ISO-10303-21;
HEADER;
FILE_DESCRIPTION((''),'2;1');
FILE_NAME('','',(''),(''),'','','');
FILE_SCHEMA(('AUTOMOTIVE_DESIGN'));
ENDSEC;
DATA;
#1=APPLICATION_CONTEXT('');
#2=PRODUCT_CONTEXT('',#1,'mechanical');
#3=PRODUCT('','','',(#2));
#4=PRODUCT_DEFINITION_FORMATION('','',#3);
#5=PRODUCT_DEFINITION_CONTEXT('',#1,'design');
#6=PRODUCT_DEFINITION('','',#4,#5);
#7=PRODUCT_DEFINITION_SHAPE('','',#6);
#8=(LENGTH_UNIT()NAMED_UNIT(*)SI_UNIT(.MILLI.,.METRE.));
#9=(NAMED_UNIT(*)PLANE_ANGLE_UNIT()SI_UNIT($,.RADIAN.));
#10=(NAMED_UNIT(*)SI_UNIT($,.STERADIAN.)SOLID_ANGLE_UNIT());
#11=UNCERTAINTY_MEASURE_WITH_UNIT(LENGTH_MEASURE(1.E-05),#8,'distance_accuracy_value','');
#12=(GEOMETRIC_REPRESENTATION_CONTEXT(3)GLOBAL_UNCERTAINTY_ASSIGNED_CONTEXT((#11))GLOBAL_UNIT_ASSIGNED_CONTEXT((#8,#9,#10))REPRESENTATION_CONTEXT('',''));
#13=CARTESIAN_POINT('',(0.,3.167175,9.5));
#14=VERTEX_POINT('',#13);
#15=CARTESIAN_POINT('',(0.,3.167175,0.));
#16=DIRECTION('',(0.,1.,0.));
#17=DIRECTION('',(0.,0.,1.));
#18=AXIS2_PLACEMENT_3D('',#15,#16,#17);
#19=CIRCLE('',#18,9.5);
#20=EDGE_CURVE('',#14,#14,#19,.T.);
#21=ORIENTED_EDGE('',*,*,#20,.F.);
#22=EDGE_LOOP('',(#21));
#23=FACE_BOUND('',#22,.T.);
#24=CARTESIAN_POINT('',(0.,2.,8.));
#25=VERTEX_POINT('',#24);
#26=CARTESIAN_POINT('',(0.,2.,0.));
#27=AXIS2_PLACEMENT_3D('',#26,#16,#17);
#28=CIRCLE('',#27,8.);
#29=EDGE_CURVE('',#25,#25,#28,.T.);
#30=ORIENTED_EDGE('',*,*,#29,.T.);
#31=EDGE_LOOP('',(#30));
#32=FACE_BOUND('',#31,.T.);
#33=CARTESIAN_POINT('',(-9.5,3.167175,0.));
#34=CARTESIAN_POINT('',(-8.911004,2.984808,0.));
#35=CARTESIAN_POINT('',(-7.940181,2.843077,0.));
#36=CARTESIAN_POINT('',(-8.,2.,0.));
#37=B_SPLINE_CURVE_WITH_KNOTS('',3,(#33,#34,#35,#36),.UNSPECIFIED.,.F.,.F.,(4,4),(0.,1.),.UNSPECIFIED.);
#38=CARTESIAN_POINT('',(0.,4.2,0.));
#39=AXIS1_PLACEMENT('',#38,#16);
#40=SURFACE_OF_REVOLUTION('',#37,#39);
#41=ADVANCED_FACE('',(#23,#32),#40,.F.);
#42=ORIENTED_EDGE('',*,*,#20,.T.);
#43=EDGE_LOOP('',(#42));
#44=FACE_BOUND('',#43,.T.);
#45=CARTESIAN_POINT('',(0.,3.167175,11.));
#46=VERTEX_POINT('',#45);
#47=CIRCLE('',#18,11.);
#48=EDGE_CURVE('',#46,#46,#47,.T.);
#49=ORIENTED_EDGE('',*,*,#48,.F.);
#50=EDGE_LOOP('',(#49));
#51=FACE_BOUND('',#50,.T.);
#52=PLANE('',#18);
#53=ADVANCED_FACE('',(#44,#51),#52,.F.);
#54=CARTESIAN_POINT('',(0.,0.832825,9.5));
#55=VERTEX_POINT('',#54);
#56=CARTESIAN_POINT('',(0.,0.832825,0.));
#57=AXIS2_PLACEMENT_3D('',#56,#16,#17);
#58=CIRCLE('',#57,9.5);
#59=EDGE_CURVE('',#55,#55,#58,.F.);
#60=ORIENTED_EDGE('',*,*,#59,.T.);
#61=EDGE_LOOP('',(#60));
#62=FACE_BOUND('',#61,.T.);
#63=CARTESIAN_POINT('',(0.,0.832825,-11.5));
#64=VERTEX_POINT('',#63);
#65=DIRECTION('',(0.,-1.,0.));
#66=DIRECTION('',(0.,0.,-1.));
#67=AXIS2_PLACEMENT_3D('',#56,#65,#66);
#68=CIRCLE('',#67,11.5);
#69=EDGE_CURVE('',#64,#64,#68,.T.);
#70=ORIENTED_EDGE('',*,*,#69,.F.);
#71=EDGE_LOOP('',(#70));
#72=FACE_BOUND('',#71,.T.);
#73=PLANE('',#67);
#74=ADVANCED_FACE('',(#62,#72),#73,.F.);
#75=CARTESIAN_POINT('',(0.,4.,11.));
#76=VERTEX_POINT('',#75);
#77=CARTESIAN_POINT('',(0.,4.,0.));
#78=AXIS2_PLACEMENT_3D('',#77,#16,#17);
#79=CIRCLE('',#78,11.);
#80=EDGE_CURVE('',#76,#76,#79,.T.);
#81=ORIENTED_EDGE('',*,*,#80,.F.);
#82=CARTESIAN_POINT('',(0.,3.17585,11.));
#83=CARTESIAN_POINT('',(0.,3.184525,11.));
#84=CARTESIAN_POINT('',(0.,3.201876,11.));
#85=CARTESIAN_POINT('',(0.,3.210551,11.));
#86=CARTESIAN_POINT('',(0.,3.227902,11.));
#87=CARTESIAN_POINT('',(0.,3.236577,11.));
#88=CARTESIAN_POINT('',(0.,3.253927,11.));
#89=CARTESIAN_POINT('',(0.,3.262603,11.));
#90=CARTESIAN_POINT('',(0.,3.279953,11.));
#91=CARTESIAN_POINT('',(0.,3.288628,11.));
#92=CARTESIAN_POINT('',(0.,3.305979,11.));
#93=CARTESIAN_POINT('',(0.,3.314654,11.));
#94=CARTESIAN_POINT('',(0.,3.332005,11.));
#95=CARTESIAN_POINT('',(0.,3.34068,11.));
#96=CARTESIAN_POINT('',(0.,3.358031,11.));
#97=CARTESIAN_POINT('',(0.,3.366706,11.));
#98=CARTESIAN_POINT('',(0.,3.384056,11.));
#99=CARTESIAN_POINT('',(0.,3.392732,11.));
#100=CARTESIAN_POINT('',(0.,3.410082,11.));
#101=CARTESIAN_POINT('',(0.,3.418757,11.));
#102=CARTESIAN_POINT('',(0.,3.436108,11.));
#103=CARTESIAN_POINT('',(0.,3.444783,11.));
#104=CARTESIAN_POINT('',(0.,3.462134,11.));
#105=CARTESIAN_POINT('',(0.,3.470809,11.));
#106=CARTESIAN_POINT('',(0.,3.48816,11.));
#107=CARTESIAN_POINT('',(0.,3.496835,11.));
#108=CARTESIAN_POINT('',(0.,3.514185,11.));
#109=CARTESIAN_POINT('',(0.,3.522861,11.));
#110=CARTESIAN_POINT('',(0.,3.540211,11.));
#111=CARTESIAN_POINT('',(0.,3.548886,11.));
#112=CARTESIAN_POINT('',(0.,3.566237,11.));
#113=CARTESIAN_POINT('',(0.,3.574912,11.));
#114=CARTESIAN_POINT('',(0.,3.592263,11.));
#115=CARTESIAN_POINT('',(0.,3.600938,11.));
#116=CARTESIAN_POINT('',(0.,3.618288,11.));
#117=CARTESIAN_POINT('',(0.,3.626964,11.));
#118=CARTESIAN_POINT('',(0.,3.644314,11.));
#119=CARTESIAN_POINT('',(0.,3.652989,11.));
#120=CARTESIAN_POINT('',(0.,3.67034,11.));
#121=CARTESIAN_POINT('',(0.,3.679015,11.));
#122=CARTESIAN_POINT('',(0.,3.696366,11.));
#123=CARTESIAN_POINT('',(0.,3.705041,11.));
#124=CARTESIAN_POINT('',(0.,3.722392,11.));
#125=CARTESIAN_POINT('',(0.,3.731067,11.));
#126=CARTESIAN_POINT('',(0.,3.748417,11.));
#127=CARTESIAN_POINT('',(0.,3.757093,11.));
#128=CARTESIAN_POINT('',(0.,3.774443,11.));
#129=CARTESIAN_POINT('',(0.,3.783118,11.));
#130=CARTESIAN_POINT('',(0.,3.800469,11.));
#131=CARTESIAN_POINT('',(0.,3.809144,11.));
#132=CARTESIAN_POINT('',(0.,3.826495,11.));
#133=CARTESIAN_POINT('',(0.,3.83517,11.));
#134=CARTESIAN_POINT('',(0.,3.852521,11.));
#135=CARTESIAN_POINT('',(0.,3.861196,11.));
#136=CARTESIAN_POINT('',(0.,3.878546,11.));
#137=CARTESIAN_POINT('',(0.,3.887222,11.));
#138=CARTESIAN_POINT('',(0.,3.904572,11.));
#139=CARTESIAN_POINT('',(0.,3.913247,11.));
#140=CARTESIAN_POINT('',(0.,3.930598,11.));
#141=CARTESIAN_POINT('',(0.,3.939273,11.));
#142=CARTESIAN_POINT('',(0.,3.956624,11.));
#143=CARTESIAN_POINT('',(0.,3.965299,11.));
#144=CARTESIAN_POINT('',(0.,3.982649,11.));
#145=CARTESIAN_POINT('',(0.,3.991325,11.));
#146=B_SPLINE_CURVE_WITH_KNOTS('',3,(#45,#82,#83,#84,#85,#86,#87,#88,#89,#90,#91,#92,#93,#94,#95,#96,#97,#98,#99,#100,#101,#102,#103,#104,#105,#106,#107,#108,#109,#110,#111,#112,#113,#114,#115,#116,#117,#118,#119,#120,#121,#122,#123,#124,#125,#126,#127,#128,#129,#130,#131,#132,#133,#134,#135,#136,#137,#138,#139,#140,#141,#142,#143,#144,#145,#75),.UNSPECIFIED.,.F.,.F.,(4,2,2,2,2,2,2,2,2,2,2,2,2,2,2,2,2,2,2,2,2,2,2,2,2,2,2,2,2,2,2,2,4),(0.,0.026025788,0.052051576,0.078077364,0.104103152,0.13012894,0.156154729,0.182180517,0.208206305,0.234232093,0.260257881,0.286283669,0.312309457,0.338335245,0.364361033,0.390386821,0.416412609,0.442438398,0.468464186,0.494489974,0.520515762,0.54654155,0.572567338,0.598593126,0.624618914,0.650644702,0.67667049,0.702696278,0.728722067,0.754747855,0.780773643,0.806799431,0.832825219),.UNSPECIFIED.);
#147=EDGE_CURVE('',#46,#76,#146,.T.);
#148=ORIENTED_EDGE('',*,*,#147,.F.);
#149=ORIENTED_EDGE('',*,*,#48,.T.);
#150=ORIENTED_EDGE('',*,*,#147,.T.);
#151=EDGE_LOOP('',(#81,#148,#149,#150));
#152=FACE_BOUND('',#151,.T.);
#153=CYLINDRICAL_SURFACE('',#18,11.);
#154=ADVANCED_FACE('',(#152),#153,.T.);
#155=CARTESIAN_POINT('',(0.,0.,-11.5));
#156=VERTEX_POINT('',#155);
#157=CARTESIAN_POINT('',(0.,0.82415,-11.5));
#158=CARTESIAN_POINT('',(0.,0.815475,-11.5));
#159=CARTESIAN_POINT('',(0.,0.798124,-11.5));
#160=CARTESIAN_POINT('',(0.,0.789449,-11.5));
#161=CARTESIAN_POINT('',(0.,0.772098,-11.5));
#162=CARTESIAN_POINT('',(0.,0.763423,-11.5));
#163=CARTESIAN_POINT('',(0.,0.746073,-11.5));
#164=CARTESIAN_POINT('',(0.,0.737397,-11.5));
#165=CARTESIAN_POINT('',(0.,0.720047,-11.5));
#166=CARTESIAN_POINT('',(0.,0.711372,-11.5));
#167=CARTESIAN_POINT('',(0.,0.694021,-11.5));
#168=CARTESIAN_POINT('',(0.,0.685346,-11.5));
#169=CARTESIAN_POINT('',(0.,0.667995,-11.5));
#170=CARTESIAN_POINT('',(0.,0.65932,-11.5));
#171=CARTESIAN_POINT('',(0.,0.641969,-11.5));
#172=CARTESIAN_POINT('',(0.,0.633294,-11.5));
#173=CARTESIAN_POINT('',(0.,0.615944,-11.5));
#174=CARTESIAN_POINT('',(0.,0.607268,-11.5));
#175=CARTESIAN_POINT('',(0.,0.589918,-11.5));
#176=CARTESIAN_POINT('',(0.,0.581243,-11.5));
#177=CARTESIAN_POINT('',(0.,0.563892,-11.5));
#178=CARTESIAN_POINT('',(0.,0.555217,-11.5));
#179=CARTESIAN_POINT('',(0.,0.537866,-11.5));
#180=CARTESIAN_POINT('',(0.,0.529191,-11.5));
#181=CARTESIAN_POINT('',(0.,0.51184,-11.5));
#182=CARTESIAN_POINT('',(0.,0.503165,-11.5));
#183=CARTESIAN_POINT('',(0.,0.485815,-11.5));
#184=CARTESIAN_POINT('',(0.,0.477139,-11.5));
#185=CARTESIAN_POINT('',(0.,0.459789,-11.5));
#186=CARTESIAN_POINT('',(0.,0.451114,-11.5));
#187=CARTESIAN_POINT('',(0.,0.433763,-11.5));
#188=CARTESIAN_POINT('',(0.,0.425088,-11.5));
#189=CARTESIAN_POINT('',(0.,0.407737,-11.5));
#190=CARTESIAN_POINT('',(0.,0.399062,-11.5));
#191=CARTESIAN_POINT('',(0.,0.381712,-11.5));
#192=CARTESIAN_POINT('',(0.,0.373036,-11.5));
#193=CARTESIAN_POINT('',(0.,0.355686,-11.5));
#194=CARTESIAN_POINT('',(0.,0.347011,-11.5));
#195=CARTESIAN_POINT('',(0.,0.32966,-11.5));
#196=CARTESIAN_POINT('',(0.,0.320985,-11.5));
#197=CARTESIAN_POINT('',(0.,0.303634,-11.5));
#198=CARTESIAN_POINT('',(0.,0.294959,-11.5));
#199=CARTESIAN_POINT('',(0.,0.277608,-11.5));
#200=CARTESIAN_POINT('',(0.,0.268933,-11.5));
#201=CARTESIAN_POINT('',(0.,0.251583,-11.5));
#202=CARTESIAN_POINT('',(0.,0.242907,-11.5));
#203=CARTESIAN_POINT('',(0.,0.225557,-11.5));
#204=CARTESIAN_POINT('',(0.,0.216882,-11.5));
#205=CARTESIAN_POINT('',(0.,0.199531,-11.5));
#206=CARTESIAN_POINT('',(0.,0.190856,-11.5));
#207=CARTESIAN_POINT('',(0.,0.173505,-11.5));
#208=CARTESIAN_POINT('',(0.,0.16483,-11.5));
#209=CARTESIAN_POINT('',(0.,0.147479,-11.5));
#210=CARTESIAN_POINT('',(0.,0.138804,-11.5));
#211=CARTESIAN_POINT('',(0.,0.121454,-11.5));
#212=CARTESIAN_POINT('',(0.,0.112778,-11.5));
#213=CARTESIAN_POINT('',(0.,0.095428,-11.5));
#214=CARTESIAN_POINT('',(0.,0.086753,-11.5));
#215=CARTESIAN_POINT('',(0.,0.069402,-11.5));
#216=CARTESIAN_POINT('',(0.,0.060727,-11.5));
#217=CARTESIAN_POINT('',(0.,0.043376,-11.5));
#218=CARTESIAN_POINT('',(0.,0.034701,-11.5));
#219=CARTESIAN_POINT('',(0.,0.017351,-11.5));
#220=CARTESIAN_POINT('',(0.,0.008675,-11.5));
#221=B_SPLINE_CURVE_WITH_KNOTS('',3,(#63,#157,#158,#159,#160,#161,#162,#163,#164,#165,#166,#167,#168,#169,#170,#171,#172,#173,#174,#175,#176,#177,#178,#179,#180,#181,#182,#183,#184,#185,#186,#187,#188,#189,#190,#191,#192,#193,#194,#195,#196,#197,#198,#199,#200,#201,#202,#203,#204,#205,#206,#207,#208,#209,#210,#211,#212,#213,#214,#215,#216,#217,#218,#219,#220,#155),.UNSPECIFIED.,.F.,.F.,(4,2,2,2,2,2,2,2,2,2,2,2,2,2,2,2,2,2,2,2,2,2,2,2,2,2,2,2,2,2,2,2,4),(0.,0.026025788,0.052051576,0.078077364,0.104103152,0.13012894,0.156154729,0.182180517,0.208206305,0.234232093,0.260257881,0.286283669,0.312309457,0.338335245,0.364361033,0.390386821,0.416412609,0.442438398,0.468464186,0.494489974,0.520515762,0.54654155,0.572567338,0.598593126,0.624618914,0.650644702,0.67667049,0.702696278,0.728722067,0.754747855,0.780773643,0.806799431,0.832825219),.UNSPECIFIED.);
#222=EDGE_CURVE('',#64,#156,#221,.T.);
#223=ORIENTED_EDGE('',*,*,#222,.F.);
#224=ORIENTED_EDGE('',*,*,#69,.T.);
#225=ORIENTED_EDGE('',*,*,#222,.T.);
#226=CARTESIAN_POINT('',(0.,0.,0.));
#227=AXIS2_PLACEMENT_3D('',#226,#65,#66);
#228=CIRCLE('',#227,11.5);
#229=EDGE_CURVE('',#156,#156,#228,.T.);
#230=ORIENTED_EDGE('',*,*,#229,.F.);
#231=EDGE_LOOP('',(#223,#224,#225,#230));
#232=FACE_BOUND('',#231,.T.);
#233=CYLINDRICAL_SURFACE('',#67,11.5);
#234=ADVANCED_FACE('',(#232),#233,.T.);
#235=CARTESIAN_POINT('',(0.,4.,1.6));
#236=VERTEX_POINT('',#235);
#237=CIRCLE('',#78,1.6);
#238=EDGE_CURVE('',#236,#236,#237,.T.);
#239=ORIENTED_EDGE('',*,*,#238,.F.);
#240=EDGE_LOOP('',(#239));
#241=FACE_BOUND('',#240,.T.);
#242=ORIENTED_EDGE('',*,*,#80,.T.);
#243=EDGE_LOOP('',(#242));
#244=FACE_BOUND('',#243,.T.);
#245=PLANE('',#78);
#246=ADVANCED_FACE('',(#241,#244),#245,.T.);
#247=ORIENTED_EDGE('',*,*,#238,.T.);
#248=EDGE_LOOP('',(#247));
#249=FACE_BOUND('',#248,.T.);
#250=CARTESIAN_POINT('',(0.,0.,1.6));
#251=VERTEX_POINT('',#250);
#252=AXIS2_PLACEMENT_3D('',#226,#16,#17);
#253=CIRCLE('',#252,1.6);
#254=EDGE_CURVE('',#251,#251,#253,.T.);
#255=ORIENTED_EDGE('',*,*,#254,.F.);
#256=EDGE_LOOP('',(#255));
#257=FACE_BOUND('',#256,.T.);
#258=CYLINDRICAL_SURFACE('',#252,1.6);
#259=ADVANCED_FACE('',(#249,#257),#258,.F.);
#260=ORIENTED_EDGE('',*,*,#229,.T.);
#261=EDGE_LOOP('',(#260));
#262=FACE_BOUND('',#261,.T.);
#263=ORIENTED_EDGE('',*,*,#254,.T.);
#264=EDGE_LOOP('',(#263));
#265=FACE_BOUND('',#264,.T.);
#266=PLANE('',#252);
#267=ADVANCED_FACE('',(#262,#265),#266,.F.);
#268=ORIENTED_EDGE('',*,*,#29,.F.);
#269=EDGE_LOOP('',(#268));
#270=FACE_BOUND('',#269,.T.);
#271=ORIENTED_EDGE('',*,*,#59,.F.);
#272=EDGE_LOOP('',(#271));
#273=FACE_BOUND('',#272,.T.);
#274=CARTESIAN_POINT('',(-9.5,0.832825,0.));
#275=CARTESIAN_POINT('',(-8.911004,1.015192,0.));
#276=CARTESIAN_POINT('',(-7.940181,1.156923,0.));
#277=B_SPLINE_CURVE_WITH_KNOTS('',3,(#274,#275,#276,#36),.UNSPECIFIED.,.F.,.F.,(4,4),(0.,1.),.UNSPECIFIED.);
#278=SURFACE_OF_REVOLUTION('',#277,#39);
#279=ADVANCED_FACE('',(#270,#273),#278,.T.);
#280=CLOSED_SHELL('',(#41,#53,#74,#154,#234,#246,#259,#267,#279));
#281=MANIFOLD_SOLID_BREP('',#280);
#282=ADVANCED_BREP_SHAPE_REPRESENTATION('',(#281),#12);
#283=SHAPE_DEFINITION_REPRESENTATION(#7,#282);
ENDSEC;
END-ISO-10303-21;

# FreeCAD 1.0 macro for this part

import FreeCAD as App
import Part
import Sketcher
from FreeCAD import Vector
Q = App.Units.Quantity

doc = App.newDocument("Part")
params = doc.addObject("Spreadsheet::Sheet", "Params")
for row, (alias, value) in enumerate([
    ("sketch1_diameter", "19 mm"),
    ("pad1_length", "4 mm"),
    ("groove_angle", "360 deg"),
    ("sketch3_diameter", "3.2 mm"),
    ("sketch4_diameter", "22 mm"),
    ("sketch4_diameter2", "3.2 mm"),
    ("pad2_length", "0.832825 mm"),
    ("sketch5_diameter", "23 mm"),
    ("sketch5_diameter2", "3.2 mm"),
    ("pad3_length", "0.832825 mm"),
], start=1):
    params.set(f"A{row}", alias)
    params.set(f"B{row}", "=" + value)
    params.setAlias(f"B{row}", alias)

body = doc.addObject("PartDesign::Body", "Body")

sketch1 = body.newObject("Sketcher::SketchObject", "Sketch")
sketch1.AttachmentSupport = (doc.getObject("XZ_Plane"), [""])
sketch1.MapMode = "FlatFace"
sketch1.addGeometry(Part.Circle(Vector(0, 0, 0), Vector(0, 0, 1), 10), False)
sketch1.addConstraint([
    Sketcher.Constraint("Coincident", 0, 3, -1, 1),
    Sketcher.Constraint("Diameter", 0, Q("19 mm")),
])
sketch1.setExpression("Constraints[1]", "Params.sketch1_diameter")
pad1 = body.newObject("PartDesign::Pad", "Pad")
pad1.Profile = sketch1
pad1.setExpression("Length", "Params.pad1_length")
pad1.Reversed = True

sketch2 = body.newObject("Sketcher::SketchObject", "Sketch001")
sketch2.AttachmentSupport = (doc.getObject("XY_Plane"), [""])
sketch2.MapMode = "FlatFace"
sketch2.addGeometry([
    Part.LineSegment(Vector(-9.5, 3.167175, 0), Vector(-9.5, 0.832825, 0)),
    Part.BSplineCurve([Vector(-9.5, 0.832825, 0), Vector(-8.911004, 1.015192, 0), Vector(-7.940181, 1.156923, 0), Vector(-8, 2, 0)], [4, 4], [0, 1], False, 3, [1, 1, 1, 1], False),
    Part.BSplineCurve([Vector(-9.5, 3.167175, 0), Vector(-8.911004, 2.984808, 0), Vector(-7.940181, 2.843077, 0), Vector(-8, 2, 0)], [4, 4], [0, 1], False, 3, [1, 1, 1, 1], False),
], False)
sketch2.addConstraint([
    Sketcher.Constraint("Block", 1),
    Sketcher.Constraint("Block", 2),
    Sketcher.Constraint("Coincident", 0, 2, 1, 1),
    Sketcher.Constraint("Coincident", 2, 1, 0, 1),
])
groove = body.newObject("PartDesign::Groove", "Groove")
groove.Profile = sketch2
groove.ReferenceAxis = (sketch2, ["V_Axis"])
groove.setExpression("Angle", "Params.groove_angle")

sketch3 = body.newObject("Sketcher::SketchObject", "Sketch002")
sketch3.AttachmentSupport = (doc.getObject("XZ_Plane"), [""])
sketch3.MapMode = "FlatFace"
sketch3.AttachmentOffset = App.Placement(Vector(0, 0, -4), App.Rotation())
sketch3.addGeometry(Part.Circle(Vector(0, 0, 0), Vector(0, 0, 1), 1.6), False)
sketch3.addConstraint([
    Sketcher.Constraint("Coincident", 0, 3, -1, 1),
    Sketcher.Constraint("Diameter", 0, Q("3.2 mm")),
])
sketch3.setExpression("Constraints[1]", "Params.sketch3_diameter")
pocket1 = body.newObject("PartDesign::Pocket", "Pocket")
pocket1.Profile = sketch3
pocket1.Type = "ThroughAll"
pocket1.Reversed = True

sketch4 = body.newObject("Sketcher::SketchObject", "Sketch003")
sketch4.AttachmentSupport = (doc.getObject("XZ_Plane"), [""])
sketch4.MapMode = "FlatFace"
sketch4.AttachmentOffset = App.Placement(Vector(0, 0, -4), App.Rotation())
sketch4.addGeometry([
    Part.Circle(Vector(0, 0, 0), Vector(0, 0, 1), 11),
    Part.Circle(Vector(0, 0, 0), Vector(0, 0, 1), 1.6),
], False)
sketch4.addConstraint([
    Sketcher.Constraint("Coincident", 0, 3, -1, 1),
    Sketcher.Constraint("Coincident", 1, 3, -1, 1),
    Sketcher.Constraint("Diameter", 0, Q("22 mm")),
    Sketcher.Constraint("Diameter", 1, Q("3.2 mm")),
])
sketch4.setExpression("Constraints[2]", "Params.sketch4_diameter")
sketch4.setExpression("Constraints[3]", "Params.sketch4_diameter2")
pad2 = body.newObject("PartDesign::Pad", "Pad001")
pad2.Profile = sketch4
pad2.setExpression("Length", "Params.pad2_length")

sketch5 = body.newObject("Sketcher::SketchObject", "Sketch004")
sketch5.AttachmentSupport = (doc.getObject("XZ_Plane"), [""])
sketch5.MapMode = "FlatFace"
sketch5.AttachmentOffset = App.Placement(Vector(0, 0, -0.832825), App.Rotation())
sketch5.addGeometry([
    Part.Circle(Vector(0, 0, 0), Vector(0, 0, 1), 11.5),
    Part.Circle(Vector(0, 0, 0), Vector(0, 0, 1), 1.6),
], False)
sketch5.addConstraint([
    Sketcher.Constraint("Coincident", 0, 3, -1, 1),
    Sketcher.Constraint("Coincident", 1, 3, -1, 1),
    Sketcher.Constraint("Diameter", 0, Q("23 mm")),
    Sketcher.Constraint("Diameter", 1, Q("3.2 mm")),
])
sketch5.setExpression("Constraints[2]", "Params.sketch5_diameter")
sketch5.setExpression("Constraints[3]", "Params.sketch5_diameter2")
pad3 = body.newObject("PartDesign::Pad", "Pad002")
pad3.Profile = sketch5
pad3.setExpression("Length", "Params.pad3_length")

doc.recompute()
